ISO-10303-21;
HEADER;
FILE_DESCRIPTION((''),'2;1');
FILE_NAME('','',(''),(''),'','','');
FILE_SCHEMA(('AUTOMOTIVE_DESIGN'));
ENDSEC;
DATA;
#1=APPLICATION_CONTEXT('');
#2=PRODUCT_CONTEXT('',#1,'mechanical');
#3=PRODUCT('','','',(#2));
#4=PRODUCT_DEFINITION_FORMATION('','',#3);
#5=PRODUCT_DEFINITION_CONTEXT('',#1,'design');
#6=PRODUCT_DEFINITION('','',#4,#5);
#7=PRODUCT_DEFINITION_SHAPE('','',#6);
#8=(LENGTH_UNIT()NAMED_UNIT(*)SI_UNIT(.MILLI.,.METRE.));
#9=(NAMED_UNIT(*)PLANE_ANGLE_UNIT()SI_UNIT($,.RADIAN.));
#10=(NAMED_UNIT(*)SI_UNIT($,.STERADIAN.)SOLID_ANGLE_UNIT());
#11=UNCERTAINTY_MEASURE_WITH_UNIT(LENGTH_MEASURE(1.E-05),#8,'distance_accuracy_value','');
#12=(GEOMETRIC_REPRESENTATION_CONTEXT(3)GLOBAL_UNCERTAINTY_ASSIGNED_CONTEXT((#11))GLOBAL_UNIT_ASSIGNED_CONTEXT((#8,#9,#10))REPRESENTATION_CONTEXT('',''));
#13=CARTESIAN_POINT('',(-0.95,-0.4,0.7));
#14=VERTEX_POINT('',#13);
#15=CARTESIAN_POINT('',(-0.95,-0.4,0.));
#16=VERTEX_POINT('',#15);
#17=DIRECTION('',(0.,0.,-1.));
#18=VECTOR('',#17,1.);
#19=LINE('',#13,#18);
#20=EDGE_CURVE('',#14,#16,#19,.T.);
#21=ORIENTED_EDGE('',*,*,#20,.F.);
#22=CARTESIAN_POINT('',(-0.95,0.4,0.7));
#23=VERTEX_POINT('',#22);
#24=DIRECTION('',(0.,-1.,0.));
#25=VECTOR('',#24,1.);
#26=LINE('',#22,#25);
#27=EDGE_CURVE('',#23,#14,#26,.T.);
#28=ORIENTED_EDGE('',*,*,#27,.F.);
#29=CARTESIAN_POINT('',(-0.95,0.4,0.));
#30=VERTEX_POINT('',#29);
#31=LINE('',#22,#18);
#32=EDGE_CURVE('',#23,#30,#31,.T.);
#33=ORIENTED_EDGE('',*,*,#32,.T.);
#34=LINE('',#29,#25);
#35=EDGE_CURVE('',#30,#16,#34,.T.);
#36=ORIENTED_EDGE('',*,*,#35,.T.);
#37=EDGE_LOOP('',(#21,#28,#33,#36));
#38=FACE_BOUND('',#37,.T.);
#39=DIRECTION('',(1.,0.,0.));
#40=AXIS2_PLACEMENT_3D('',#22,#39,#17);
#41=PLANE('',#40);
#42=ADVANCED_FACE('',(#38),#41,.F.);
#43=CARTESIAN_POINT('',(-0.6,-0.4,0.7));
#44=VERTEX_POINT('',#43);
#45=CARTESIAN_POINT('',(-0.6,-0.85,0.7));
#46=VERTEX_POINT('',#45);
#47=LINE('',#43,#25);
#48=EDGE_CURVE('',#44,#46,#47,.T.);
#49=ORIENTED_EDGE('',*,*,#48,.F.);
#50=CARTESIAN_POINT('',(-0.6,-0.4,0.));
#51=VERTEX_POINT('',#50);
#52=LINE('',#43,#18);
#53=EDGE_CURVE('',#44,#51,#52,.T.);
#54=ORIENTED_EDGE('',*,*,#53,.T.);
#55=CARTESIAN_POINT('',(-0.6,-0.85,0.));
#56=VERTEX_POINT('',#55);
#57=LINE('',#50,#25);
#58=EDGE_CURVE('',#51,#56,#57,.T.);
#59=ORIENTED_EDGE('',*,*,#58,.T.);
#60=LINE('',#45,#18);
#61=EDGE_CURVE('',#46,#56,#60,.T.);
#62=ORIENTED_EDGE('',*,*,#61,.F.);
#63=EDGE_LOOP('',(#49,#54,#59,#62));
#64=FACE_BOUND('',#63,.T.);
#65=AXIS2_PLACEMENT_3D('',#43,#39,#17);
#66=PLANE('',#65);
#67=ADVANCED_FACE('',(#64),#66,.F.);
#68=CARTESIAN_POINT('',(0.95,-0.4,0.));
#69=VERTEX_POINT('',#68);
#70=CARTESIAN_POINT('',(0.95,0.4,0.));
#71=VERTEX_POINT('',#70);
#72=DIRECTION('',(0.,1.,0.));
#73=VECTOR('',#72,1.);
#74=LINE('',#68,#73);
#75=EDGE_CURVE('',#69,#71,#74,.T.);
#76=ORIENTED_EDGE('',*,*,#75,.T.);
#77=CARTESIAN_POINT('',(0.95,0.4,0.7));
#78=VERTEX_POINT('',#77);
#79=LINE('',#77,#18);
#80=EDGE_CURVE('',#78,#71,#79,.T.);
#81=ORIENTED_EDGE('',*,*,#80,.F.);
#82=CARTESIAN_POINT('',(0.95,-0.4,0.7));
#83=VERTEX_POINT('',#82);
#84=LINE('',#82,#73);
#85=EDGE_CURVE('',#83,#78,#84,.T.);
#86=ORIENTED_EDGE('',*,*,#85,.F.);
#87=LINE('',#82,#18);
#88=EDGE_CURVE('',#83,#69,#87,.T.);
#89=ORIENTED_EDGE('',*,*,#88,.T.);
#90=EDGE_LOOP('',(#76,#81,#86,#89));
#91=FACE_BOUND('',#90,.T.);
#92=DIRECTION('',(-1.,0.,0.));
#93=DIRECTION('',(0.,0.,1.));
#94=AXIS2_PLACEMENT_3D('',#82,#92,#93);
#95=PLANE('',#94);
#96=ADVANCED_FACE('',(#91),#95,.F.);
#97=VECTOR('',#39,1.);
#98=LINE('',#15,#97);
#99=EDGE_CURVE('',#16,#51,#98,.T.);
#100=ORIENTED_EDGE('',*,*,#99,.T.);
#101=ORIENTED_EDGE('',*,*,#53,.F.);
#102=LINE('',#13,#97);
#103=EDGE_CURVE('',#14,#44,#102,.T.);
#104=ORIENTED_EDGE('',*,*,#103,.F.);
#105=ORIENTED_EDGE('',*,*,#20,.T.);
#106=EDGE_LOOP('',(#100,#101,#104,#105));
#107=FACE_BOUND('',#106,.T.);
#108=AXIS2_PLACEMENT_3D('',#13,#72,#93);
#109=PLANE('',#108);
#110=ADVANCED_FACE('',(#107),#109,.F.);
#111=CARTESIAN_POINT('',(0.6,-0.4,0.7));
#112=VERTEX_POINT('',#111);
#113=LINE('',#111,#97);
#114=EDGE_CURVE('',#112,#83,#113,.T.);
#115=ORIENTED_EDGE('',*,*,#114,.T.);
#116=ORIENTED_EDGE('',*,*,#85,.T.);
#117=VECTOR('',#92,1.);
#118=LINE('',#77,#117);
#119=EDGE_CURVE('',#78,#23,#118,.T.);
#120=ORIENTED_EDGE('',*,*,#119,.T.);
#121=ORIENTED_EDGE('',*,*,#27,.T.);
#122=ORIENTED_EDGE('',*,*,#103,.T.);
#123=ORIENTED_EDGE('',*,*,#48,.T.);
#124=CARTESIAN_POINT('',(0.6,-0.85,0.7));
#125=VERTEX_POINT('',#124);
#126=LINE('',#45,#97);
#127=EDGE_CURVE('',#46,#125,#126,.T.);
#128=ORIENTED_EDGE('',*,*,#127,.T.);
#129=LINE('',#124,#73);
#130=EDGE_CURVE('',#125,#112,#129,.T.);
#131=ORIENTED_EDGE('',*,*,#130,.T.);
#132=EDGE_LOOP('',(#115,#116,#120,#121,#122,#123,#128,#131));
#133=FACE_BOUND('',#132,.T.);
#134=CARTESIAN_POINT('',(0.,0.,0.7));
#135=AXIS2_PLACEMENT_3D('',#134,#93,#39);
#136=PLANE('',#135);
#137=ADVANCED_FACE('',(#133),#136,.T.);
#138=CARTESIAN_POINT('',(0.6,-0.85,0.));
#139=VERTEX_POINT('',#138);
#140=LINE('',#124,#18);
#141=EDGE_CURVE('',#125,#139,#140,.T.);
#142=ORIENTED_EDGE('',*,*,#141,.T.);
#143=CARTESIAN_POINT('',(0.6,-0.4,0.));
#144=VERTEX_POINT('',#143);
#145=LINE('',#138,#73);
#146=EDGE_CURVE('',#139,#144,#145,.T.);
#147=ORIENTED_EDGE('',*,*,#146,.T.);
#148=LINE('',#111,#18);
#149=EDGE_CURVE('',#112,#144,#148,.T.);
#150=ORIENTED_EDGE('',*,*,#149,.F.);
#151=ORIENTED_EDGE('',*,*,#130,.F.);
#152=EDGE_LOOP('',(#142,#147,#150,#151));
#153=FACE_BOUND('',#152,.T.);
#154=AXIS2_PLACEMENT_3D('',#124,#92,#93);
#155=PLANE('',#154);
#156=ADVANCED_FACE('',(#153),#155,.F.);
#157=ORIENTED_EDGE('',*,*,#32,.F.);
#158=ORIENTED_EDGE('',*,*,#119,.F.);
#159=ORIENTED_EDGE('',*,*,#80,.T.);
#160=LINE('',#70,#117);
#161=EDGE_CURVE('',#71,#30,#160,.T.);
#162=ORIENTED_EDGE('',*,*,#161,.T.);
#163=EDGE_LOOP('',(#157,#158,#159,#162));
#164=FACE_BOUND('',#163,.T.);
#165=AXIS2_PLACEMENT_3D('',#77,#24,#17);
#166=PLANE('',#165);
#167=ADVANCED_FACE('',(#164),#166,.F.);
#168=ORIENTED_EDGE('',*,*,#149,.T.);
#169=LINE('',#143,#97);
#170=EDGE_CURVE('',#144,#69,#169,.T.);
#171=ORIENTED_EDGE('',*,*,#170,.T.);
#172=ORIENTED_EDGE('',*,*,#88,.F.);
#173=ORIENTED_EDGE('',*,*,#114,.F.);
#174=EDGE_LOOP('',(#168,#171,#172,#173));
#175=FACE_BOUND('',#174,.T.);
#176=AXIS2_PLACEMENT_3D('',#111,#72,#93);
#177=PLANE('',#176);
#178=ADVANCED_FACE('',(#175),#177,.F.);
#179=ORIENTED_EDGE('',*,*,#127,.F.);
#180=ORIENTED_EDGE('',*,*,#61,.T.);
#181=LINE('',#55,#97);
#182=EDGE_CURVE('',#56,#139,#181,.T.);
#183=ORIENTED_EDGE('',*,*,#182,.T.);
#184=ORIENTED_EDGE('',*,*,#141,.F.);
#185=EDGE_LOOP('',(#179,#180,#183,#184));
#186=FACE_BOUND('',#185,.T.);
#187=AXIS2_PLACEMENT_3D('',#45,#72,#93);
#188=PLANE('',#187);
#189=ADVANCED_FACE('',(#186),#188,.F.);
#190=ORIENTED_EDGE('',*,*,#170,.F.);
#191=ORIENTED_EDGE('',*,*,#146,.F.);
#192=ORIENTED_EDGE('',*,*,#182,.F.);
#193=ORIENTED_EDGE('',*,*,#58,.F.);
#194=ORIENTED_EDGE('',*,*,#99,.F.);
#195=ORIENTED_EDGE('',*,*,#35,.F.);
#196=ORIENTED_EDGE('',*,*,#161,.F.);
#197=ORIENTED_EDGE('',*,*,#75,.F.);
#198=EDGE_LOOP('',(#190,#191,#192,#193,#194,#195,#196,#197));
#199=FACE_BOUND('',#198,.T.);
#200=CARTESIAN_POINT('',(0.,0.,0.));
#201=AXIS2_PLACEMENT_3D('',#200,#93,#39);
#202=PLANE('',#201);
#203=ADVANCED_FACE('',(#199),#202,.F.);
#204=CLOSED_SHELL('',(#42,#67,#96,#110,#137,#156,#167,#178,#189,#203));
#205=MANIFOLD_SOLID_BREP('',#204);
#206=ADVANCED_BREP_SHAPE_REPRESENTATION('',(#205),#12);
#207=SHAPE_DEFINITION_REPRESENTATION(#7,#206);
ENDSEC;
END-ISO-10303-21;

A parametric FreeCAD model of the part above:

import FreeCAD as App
import Part
import Sketcher
Q = App.Units.Quantity


def add_polygon(sketch, points):
    """Adds a closed chain of lines whose ends are joined by coincident constraints."""
    first, n = sketch.GeometryCount, len(points)
    for a, b in zip(points, points[1:] + points[:1]):
        sketch.addGeometry(Part.LineSegment(App.Vector(*a, 0), App.Vector(*b, 0)), False)
    for i in range(n):
        sketch.addConstraint(Sketcher.Constraint("Coincident", first + i, 2, first + (i + 1) % n, 1))

doc = App.newDocument("Part")
body = doc.addObject("PartDesign::Body", "Body")

# Sketch on XY plane
sketch1 = body.newObject("Sketcher::SketchObject", "Sketch")
sketch1.AttachmentSupport = (doc.getObject("XY_Plane"), [""])
sketch1.MapMode = "FlatFace"
add_polygon(sketch1, [(0.95, 0.4), (-0.95, 0.4), (-0.95, -0.4), (-0.6, -0.4), (-0.6, -0.85), (0.6, -0.85), (0.6, -0.4), (0.95, -0.4)])  # lines 0-7
sketch1.addConstraint(Sketcher.Constraint("Horizontal", 0))
sketch1.addConstraint(Sketcher.Constraint("Vertical", 1))
sketch1.addConstraint(Sketcher.Constraint("Horizontal", 2))
sketch1.addConstraint(Sketcher.Constraint("Vertical", 3))
sketch1.addConstraint(Sketcher.Constraint("Horizontal", 4))
sketch1.addConstraint(Sketcher.Constraint("Vertical", 5))
sketch1.addConstraint(Sketcher.Constraint("Horizontal", 6))
sketch1.addConstraint(Sketcher.Constraint("Vertical", 7))
sketch1.addConstraint(Sketcher.Constraint("Symmetric", 0, 2, 6, 2, -1, 1))
sketch1.addConstraint(Sketcher.Constraint("Symmetric", 2, 2, 5, 2, -2))
sketch1.addConstraint(Sketcher.Constraint("DistanceX", 0, 2, 0, 1, Q("1.9 mm")))
sketch1.addConstraint(Sketcher.Constraint("DistanceX", 4, 1, 4, 2, Q("1.2 mm")))
sketch1.addConstraint(Sketcher.Constraint("DistanceY", 1, 2, 1, 1, Q("0.8 mm")))
sketch1.addConstraint(Sketcher.Constraint("DistanceY", 3, 2, 3, 1, Q("0.45 mm")))
pad1 = body.newObject("PartDesign::Pad", "Pad")
pad1.Profile = sketch1
pad1.Length = 0.7

doc.recompute()
